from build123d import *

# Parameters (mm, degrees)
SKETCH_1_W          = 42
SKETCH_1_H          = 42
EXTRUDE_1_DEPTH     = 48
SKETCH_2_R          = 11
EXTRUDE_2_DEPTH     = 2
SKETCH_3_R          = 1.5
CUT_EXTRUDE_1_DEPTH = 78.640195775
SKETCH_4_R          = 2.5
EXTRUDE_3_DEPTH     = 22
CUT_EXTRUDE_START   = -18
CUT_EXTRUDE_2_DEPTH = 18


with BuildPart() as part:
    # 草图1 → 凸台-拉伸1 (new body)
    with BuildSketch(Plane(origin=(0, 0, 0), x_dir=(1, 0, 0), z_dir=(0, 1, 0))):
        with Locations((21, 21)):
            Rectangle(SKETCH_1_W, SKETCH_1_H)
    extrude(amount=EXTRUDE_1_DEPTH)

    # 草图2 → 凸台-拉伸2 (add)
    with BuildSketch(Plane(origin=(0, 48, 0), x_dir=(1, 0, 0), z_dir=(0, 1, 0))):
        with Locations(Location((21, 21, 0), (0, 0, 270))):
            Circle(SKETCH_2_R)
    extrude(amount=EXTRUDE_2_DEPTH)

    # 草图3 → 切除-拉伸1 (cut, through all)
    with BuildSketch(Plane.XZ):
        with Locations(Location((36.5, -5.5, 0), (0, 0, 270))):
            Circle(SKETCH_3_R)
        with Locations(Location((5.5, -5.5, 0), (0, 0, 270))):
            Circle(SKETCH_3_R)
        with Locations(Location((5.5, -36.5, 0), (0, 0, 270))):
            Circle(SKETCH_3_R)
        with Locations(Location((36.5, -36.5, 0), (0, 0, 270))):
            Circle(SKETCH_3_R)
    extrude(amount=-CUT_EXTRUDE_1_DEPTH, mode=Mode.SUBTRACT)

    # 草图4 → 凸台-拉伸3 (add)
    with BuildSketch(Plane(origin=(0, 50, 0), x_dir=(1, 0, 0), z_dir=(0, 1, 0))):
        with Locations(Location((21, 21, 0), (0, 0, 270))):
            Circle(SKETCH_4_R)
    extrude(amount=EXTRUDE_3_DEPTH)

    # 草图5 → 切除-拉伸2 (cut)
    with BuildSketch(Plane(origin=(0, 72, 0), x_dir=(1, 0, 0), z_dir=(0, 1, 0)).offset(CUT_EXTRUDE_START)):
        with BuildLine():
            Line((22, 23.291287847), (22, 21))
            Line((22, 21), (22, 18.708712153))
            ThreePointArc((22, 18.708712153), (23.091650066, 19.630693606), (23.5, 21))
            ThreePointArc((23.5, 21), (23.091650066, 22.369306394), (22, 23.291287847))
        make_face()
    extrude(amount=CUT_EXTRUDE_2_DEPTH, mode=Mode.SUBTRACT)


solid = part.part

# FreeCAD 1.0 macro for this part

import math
import FreeCAD as App
import Part
import Sketcher
Q = App.Units.Quantity


def add_polygon(sketch, points):
    """Adds a closed chain of lines whose ends are joined by coincident constraints."""
    first, n = sketch.GeometryCount, len(points)
    for a, b in zip(points, points[1:] + points[:1]):
        sketch.addGeometry(Part.LineSegment(App.Vector(*a, 0), App.Vector(*b, 0)), False)
    for i in range(n):
        sketch.addConstraint(Sketcher.Constraint("Coincident", first + i, 2, first + (i + 1) % n, 1))

doc = App.newDocument("Part")
params = doc.addObject("Spreadsheet::Sheet", "Params")
for row, (alias, value) in enumerate([
    ("sketch1_width", "42 mm"),
    ("pad1_length", "48 mm"),
    ("sketch2_diameter", "22 mm"),
    ("pad2_length", "2 mm"),
    ("sketch3_diameter", "3 mm"),
    ("sketch4_diameter", "5 mm"),
    ("pad3_length", "22 mm"),
    ("sketch5_radius", "2.5 mm"),
    ("pocket2_length", "18 mm"),
], start=1):
    params.set(f"A{row}", alias)
    params.set(f"B{row}", "=" + value)
    params.setAlias(f"B{row}", alias)

body = doc.addObject("PartDesign::Body", "Body")

# Sketch on XZ plane
sketch1 = doc.addObject("Sketcher::SketchObject", "Sketch")
body.addObject(sketch1)
sketch1.AttachmentSupport = (doc.XZ_Plane, [""])
sketch1.MapMode = "FlatFace"
add_polygon(sketch1, [(0, -42), (0, 0), (42, 0), (42, -42)])  # lines 0-3
sketch1.addConstraint([
    Sketcher.Constraint("Vertical", 0),
    Sketcher.Constraint("Horizontal", 1),
    Sketcher.Constraint("Vertical", 2),
    Sketcher.Constraint("Horizontal", 3),
    Sketcher.Constraint("Coincident", 0, 2, -1, 1),
    Sketcher.Constraint("Equal", 3, 0),
    Sketcher.Constraint("DistanceX", 1, 1, 1, 2, Q("42 mm")),
])
sketch1.setExpression("Constraints[10]", "Params.sketch1_width")
pad1 = doc.addObject("PartDesign::Pad", "Pad")
body.addObject(pad1)
pad1.Profile = sketch1
pad1.setExpression("Length", "Params.pad1_length")
pad1.Reversed = True

# Sketch on XZ plane
sketch2 = doc.addObject("Sketcher::SketchObject", "Sketch001")
body.addObject(sketch2)
sketch2.AttachmentSupport = (doc.XZ_Plane, [""])
sketch2.MapMode = "FlatFace"
sketch2.AttachmentOffset = App.Placement(App.Vector(0, 0, -48), App.Rotation())
sketch2.addGeometry(Part.Circle(App.Vector(21, -21, 0), App.Vector(0, 0, 1), 11), False)
sketch2.addConstraint([
    Sketcher.Constraint("Diameter", 0, Q("22 mm")),
    Sketcher.Constraint("DistanceX", -1, 1, 0, 3, Q("21 mm")),
    Sketcher.Constraint("DistanceY", 0, 3, -1, 1, Q("21 mm")),
])
sketch2.setExpression("Constraints[0]", "Params.sketch2_diameter")
pad2 = doc.addObject("PartDesign::Pad", "Pad001")
body.addObject(pad2)
pad2.Profile = sketch2
pad2.setExpression("Length", "Params.pad2_length")
pad2.Reversed = True

# Sketch on XZ plane
sketch3 = doc.addObject("Sketcher::SketchObject", "Sketch002")
body.addObject(sketch3)
sketch3.AttachmentSupport = (doc.XZ_Plane, [""])
sketch3.MapMode = "FlatFace"
sketch3.addGeometry([
    Part.Circle(App.Vector(36.5, -5.5, 0), App.Vector(0, 0, 1), 1.5),
    Part.Circle(App.Vector(5.5, -5.5, 0), App.Vector(0, 0, 1), 1.5),
    Part.Circle(App.Vector(5.5, -36.5, 0), App.Vector(0, 0, 1), 1.5),
    Part.Circle(App.Vector(36.5, -36.5, 0), App.Vector(0, 0, 1), 1.5),
], False)
sketch3.addConstraint([
    Sketcher.Constraint("Equal", 0, 1),
    Sketcher.Constraint("Equal", 1, 2),
    Sketcher.Constraint("Equal", 2, 3),
    Sketcher.Constraint("Horizontal", 0, 3, 1, 3),
    Sketcher.Constraint("Horizontal", 2, 3, 3, 3),
    Sketcher.Constraint("Vertical", 1, 3, 2, 3),
    Sketcher.Constraint("Vertical", 0, 3, 3, 3),
    Sketcher.Constraint("Diameter", 0, Q("3 mm")),
    Sketcher.Constraint("DistanceX", 1, 3, 0, 3, Q("31 mm")),
    Sketcher.Constraint("DistanceY", 2, 3, 1, 3, Q("31 mm")),
    Sketcher.Constraint("DistanceX", -1, 1, 0, 3, Q("36.5 mm")),
    Sketcher.Constraint("DistanceY", 0, 3, -1, 1, Q("5.5 mm")),
])
sketch3.setExpression("Constraints[7]", "Params.sketch3_diameter")
pocket1 = doc.addObject("PartDesign::Pocket", "Pocket")
body.addObject(pocket1)
pocket1.Profile = sketch3
pocket1.Type = "ThroughAll"

# Sketch on XZ plane
sketch4 = doc.addObject("Sketcher::SketchObject", "Sketch003")
body.addObject(sketch4)
sketch4.AttachmentSupport = (doc.XZ_Plane, [""])
sketch4.MapMode = "FlatFace"
sketch4.AttachmentOffset = App.Placement(App.Vector(0, 0, -50), App.Rotation())
sketch4.addGeometry(Part.Circle(App.Vector(21, -21, 0), App.Vector(0, 0, 1), 2.5), False)
sketch4.addConstraint([
    Sketcher.Constraint("Diameter", 0, Q("5 mm")),
    Sketcher.Constraint("DistanceX", -1, 1, 0, 3, Q("21 mm")),
    Sketcher.Constraint("DistanceY", 0, 3, -1, 1, Q("21 mm")),
])
sketch4.setExpression("Constraints[0]", "Params.sketch4_diameter")
pad3 = doc.addObject("PartDesign::Pad", "Pad002")
body.addObject(pad3)
pad3.Profile = sketch4
pad3.setExpression("Length", "Params.pad3_length")
pad3.Reversed = True

# Sketch on XZ plane
sketch5 = doc.addObject("Sketcher::SketchObject", "Sketch004")
body.addObject(sketch5)
sketch5.AttachmentSupport = (doc.XZ_Plane, [""])
sketch5.MapMode = "FlatFace"
sketch5.AttachmentOffset = App.Placement(App.Vector(0, 0, -54), App.Rotation())
sketch5.addGeometry([
    Part.LineSegment(App.Vector(22, -23.3, 0), App.Vector(22, -18.7, 0)),
    Part.ArcOfCircle(Part.Circle(App.Vector(21, -21, 0), App.Vector(0, 0, 1), 2.5), math.radians(0), math.radians(66)),
    Part.ArcOfCircle(Part.Circle(App.Vector(21, -21, 0), App.Vector(0, 0, 1), 2.5), math.radians(-66), math.radians(0)),
], False)
sketch5.addConstraint([
    Sketcher.Constraint("Coincident", 0, 2, 1, 2),
    Sketcher.Constraint("Tangent", 1, 1, 2, 2),
    Sketcher.Constraint("Coincident", 2, 1, 0, 1),
    Sketcher.Constraint("Vertical", 0),
    Sketcher.Constraint("Equal", 1, 2),
    Sketcher.Constraint("Horizontal", 2, 3, 1, 1),
    Sketcher.Constraint("Radius", 1, Q("2.5 mm")),
    Sketcher.Constraint("DistanceX", -1, 1, 1, 3, Q("21 mm")),
    Sketcher.Constraint("DistanceY", 1, 3, -1, 1, Q("21 mm")),
    Sketcher.Constraint("DistanceX", -1, 1, 0, 2, Q("22 mm")),
])
sketch5.setExpression("Constraints[6]", "Params.sketch5_radius")
pocket2 = doc.addObject("PartDesign::Pocket", "Pocket001")
body.addObject(pocket2)
pocket2.Profile = sketch5
pocket2.setExpression("Length", "Params.pocket2_length")

doc.recompute()
